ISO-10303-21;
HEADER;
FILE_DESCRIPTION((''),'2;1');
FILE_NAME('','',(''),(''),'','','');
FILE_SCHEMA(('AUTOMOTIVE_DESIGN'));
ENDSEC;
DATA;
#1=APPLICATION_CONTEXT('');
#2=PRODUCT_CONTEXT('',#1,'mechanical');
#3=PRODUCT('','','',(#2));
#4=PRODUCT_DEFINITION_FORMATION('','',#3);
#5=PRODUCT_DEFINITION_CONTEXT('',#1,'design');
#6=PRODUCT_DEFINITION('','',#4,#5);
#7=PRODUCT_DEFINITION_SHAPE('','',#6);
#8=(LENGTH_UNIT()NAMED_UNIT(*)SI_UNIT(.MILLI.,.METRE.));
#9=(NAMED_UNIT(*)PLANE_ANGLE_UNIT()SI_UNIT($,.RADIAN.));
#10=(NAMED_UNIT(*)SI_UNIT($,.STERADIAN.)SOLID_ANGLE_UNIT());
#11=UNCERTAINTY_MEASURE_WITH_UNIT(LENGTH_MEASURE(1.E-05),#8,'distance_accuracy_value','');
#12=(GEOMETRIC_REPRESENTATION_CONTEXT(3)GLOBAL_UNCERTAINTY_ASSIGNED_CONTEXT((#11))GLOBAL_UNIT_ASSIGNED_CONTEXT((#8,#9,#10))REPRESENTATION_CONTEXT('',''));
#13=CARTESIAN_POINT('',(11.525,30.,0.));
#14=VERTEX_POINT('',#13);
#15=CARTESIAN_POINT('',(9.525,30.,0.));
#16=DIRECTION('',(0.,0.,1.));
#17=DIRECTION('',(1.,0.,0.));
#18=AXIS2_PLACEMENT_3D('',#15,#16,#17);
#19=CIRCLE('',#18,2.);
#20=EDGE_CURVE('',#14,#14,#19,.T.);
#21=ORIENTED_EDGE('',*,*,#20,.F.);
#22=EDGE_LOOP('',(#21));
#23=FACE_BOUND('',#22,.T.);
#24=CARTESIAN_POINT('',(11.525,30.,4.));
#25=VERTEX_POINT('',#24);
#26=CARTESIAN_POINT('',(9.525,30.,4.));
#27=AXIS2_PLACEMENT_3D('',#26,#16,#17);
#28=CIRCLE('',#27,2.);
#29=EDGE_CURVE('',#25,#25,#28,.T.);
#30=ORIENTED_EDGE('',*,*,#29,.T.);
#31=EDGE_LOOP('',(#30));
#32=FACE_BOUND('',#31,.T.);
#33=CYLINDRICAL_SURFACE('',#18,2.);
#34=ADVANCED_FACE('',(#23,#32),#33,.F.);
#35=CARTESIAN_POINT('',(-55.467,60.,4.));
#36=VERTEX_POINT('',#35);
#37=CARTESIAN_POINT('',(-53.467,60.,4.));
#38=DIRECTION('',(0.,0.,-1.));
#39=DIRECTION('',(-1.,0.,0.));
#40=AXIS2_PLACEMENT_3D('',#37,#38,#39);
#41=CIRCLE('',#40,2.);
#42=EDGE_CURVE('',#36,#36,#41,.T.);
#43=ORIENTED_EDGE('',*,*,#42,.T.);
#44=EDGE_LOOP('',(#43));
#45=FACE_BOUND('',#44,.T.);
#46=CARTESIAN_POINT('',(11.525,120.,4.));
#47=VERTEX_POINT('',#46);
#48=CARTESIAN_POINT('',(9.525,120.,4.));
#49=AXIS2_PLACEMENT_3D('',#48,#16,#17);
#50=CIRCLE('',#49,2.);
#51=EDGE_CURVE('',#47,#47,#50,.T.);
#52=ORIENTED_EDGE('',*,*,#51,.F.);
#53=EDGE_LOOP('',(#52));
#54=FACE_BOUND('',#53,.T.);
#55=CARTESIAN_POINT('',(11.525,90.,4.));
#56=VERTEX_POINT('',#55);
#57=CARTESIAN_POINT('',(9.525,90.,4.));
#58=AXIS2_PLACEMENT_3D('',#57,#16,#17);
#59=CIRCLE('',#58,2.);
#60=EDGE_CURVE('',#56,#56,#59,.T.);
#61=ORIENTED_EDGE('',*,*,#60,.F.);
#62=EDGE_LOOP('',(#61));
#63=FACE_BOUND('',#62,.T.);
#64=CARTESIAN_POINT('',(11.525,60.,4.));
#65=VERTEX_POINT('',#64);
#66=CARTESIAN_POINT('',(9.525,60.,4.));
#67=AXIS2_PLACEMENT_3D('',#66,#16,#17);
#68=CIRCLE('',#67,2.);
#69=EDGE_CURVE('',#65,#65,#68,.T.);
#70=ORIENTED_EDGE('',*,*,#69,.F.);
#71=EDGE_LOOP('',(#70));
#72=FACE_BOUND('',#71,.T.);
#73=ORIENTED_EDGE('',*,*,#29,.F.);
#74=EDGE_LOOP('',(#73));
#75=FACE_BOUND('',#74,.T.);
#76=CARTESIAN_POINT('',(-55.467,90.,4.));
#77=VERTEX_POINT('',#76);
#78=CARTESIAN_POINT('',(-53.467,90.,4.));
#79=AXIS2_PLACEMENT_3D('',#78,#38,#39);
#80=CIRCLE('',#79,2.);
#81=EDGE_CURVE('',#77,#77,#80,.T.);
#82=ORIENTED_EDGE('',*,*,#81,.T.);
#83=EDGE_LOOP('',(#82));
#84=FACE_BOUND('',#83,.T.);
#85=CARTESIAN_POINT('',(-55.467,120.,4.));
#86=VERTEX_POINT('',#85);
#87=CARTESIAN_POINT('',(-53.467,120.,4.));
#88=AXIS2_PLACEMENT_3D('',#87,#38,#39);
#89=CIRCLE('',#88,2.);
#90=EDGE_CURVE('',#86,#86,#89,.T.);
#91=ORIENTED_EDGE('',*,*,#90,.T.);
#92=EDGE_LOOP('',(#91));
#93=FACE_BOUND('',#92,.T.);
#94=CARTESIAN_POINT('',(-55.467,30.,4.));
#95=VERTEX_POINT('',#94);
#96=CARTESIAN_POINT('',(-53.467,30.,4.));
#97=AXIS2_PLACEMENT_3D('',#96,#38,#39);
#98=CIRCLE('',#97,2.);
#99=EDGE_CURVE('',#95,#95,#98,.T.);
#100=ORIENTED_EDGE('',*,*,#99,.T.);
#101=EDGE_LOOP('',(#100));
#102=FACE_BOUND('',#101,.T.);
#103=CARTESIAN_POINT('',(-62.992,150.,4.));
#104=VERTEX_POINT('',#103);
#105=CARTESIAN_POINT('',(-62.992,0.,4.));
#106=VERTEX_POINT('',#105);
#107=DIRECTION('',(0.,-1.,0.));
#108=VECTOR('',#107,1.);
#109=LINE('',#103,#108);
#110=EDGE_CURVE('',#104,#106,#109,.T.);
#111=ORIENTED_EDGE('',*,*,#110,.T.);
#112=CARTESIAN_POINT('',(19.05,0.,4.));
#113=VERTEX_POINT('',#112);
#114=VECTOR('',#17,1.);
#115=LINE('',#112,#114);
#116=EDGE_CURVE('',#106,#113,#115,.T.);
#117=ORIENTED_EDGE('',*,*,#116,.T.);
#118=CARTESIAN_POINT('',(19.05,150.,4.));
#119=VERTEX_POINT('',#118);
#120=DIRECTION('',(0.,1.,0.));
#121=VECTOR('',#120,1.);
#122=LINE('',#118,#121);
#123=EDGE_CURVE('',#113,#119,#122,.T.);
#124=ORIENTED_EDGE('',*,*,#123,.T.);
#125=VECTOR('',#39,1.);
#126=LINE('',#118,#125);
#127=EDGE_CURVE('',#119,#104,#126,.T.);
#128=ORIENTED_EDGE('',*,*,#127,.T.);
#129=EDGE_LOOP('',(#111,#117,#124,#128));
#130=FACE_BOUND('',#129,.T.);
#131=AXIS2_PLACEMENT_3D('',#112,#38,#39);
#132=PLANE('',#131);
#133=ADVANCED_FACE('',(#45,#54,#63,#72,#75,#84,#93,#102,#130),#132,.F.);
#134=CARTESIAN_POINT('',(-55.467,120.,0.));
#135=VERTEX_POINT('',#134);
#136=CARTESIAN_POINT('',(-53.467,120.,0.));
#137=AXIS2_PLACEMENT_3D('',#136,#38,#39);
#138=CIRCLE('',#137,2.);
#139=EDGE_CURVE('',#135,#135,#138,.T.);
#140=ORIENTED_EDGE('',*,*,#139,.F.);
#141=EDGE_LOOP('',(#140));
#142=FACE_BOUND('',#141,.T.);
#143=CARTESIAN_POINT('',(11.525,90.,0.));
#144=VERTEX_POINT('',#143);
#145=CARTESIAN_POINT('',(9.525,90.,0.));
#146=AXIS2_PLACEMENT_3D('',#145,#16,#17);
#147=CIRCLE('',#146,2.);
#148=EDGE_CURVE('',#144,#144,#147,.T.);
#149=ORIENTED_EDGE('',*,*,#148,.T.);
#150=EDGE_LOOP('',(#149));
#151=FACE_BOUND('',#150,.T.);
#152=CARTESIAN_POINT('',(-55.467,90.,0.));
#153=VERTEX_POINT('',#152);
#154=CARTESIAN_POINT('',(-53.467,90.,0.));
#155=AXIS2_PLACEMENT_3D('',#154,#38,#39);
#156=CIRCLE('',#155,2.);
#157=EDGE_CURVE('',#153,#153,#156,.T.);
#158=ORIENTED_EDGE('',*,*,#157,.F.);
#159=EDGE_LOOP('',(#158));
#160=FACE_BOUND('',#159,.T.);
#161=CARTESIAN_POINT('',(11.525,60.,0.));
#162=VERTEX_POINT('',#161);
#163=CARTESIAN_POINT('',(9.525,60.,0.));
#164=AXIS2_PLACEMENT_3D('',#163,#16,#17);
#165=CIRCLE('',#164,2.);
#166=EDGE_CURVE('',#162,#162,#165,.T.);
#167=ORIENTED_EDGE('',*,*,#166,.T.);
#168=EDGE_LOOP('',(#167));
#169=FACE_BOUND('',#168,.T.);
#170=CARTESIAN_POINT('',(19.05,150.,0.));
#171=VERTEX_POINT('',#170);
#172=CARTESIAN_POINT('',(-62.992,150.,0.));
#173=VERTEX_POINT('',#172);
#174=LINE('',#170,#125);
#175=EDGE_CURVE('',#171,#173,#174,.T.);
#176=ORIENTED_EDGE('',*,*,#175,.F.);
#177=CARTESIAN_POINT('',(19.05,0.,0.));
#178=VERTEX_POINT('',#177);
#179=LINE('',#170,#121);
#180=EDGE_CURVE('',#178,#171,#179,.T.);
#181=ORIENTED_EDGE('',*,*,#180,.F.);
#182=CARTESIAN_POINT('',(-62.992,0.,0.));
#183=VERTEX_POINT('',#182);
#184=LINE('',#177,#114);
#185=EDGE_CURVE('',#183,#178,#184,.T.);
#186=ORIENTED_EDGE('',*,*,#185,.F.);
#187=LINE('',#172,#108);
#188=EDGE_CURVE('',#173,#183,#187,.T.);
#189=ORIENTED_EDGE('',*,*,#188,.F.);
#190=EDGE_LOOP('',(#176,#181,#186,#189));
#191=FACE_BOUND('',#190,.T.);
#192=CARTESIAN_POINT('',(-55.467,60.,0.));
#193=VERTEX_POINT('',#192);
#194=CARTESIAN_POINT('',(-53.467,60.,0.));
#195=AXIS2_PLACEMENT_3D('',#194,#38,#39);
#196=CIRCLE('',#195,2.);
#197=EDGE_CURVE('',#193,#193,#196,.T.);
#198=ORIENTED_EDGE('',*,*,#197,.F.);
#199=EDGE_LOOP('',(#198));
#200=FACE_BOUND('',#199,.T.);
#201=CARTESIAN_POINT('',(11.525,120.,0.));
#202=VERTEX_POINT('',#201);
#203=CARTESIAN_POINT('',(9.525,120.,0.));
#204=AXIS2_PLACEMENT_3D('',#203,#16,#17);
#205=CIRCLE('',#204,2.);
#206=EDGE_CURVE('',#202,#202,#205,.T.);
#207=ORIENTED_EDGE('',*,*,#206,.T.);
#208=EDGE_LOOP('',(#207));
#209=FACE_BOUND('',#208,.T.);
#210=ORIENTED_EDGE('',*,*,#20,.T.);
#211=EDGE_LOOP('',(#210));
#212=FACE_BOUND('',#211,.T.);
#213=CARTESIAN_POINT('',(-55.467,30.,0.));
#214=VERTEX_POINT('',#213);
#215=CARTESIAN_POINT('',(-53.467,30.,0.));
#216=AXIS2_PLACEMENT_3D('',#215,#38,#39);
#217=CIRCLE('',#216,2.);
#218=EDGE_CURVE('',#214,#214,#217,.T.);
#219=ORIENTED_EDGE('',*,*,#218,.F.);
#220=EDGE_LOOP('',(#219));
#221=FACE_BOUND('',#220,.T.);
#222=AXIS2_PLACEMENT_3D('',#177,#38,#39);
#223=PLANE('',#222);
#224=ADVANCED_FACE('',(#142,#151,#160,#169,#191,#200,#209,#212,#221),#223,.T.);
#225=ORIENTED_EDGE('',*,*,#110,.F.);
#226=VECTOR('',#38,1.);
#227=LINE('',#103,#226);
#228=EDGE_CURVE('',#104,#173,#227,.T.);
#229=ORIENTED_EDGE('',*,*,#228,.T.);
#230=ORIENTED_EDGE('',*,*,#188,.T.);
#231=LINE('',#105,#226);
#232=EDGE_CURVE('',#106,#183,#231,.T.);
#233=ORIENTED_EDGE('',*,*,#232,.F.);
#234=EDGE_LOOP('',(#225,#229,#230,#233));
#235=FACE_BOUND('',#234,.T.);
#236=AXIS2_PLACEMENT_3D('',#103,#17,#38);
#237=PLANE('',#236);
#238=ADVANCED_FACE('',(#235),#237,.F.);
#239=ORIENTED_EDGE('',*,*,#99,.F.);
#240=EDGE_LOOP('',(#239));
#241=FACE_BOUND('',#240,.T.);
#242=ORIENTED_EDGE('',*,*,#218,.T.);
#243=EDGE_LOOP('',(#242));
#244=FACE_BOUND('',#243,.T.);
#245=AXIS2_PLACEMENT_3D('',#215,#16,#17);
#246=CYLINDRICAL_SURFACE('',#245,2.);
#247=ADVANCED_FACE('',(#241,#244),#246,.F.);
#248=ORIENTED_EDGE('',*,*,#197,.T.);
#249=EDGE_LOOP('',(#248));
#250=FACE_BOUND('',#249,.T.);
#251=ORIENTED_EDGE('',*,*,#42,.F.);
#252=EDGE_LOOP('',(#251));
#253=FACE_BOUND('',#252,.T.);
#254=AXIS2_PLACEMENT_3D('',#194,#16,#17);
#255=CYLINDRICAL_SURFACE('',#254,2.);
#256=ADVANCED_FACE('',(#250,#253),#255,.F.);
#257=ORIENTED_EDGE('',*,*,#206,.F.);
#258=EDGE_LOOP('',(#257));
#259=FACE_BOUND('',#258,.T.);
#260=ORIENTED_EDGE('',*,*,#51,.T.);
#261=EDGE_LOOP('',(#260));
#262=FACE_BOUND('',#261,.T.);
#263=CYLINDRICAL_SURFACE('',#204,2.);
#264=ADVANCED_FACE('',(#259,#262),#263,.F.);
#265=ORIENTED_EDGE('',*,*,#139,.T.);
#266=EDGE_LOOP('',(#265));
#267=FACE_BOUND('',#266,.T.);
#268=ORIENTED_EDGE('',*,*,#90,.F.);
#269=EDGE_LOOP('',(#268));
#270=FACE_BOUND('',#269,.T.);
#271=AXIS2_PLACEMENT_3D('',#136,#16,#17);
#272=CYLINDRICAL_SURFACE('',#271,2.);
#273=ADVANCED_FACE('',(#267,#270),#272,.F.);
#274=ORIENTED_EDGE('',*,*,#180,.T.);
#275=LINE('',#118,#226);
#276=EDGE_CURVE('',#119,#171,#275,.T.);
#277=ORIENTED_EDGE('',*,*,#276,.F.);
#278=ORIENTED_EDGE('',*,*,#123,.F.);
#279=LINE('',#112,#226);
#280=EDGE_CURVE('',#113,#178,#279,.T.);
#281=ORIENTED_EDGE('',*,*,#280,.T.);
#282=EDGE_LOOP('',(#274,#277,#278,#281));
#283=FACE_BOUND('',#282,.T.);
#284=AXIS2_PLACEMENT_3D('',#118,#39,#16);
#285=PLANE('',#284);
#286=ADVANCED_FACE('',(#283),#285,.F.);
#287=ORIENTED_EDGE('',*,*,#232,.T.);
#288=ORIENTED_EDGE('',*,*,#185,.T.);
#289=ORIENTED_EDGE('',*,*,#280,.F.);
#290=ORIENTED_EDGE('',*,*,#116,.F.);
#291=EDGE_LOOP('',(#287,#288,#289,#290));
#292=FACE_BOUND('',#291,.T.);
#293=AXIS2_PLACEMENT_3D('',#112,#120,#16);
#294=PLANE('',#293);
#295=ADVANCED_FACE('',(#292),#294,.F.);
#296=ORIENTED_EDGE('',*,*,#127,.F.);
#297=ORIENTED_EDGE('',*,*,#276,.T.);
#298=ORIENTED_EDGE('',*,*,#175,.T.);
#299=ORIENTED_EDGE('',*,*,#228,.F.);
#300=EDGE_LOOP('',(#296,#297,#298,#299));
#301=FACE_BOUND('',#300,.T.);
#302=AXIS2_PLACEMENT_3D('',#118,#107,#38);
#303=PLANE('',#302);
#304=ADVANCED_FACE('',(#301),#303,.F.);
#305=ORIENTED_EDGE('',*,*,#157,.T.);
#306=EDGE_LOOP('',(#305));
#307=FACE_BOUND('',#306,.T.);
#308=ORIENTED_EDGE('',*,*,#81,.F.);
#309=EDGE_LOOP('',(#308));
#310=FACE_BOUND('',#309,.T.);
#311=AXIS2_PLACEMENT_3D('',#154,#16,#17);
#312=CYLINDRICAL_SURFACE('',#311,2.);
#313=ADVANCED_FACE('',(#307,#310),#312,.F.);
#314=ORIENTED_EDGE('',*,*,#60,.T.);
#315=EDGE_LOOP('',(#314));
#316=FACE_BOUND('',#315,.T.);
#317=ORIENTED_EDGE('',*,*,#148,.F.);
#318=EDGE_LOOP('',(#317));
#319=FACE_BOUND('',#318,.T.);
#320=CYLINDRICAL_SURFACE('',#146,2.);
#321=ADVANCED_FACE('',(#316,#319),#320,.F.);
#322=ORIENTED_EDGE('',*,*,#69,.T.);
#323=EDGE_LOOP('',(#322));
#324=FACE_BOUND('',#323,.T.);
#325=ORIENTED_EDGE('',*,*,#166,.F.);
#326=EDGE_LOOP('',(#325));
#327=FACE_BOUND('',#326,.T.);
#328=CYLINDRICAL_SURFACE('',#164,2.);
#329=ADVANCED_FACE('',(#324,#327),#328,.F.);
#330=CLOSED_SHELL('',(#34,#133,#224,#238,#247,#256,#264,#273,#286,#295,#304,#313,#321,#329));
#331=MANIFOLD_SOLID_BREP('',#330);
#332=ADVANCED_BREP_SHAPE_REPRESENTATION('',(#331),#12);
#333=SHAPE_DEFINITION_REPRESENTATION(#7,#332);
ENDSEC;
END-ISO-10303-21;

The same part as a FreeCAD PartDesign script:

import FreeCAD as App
import Part
import Sketcher
from FreeCAD import Vector


def add_polygon(sketch, points):
    """Adds a closed chain of lines whose ends are joined by coincident constraints."""
    first, n = sketch.GeometryCount, len(points)
    for a, b in zip(points, points[1:] + points[:1]):
        sketch.addGeometry(Part.LineSegment(App.Vector(*a, 0), App.Vector(*b, 0)), False)
    for i in range(n):
        sketch.addConstraint(Sketcher.Constraint("Coincident", first + i, 2, first + (i + 1) % n, 1))

doc = App.newDocument("Part")
body = doc.addObject("PartDesign::Body", "Body")

sketch1 = body.newObject("Sketcher::SketchObject", "Sketch")
sketch1.AttachmentSupport = (doc.getObject("XY_Plane"), [""])
sketch1.MapMode = "FlatFace"
add_polygon(sketch1, [(-63, 150), (-63, 0), (19, 0), (19, 150)])
sketch1.addConstraint(Sketcher.Constraint("Vertical", 0))
sketch1.addConstraint(Sketcher.Constraint("Horizontal", 1))
sketch1.addConstraint(Sketcher.Constraint("Vertical", 2))
sketch1.addConstraint(Sketcher.Constraint("Horizontal", 3))
sketch1.addConstraint(Sketcher.Constraint("PointOnObject", 0, 2, -1))
sketch1.addConstraint(Sketcher.Constraint("DistanceY", 0, 2, 0, 1, 150.0))
sketch1.addConstraint(Sketcher.Constraint("DistanceX", 1, 1, 1, 2, 82.042))
sketch1.addConstraint(Sketcher.Constraint("DistanceX", -1, 1, 1, 2, 19.05))
pad1 = body.newObject("PartDesign::Pad", "Pad")
pad1.Profile = sketch1
pad1.Length = 4

sketch2 = body.newObject("Sketcher::SketchObject", "Sketch001")
sketch2.AttachmentSupport = (doc.getObject("XY_Plane"), [""])
sketch2.MapMode = "FlatFace"
sketch2.AttachmentOffset = App.Placement(Vector(0, 0, 4), App.Rotation())
sketch2.addGeometry(Part.Circle(Vector(-53.5, 30, 0), Vector(0, 0, 1), 2), False)
sketch2.addGeometry(Part.Circle(Vector(9.5, 30, 0), Vector(0, 0, 1), 2), False)
sketch2.addGeometry(Part.Circle(Vector(9.5, 60, 0), Vector(0, 0, 1), 2), False)
sketch2.addGeometry(Part.Circle(Vector(9.5, 90, 0), Vector(0, 0, 1), 2), False)
sketch2.addGeometry(Part.Circle(Vector(9.5, 120, 0), Vector(0, 0, 1), 2), False)
sketch2.addGeometry(Part.Circle(Vector(-53.5, 60, 0), Vector(0, 0, 1), 2), False)
sketch2.addGeometry(Part.Circle(Vector(-53.5, 90, 0), Vector(0, 0, 1), 2), False)
sketch2.addGeometry(Part.Circle(Vector(-53.5, 120, 0), Vector(0, 0, 1), 2), False)
sketch2.addConstraint(Sketcher.Constraint("Equal", 0, 1))
sketch2.addConstraint(Sketcher.Constraint("Equal", 1, 2))
sketch2.addConstraint(Sketcher.Constraint("Equal", 2, 3))
sketch2.addConstraint(Sketcher.Constraint("Equal", 3, 4))
sketch2.addConstraint(Sketcher.Constraint("Equal", 4, 5))
sketch2.addConstraint(Sketcher.Constraint("Equal", 5, 6))
sketch2.addConstraint(Sketcher.Constraint("Equal", 6, 7))
sketch2.addConstraint(Sketcher.Constraint("Horizontal", 0, 3, 1, 3))
sketch2.addConstraint(Sketcher.Constraint("Horizontal", 2, 3, 5, 3))
sketch2.addConstraint(Sketcher.Constraint("Horizontal", 3, 3, 6, 3))
sketch2.addConstraint(Sketcher.Constraint("Horizontal", 4, 3, 7, 3))
sketch2.addConstraint(Sketcher.Constraint("Vertical", 1, 3, 2, 3))
sketch2.addConstraint(Sketcher.Constraint("Vertical", 2, 3, 3, 3))
sketch2.addConstraint(Sketcher.Constraint("Vertical", 3, 3, 4, 3))
sketch2.addConstraint(Sketcher.Constraint("Vertical", 0, 3, 5, 3))
sketch2.addConstraint(Sketcher.Constraint("Vertical", 5, 3, 6, 3))
sketch2.addConstraint(Sketcher.Constraint("Vertical", 6, 3, 7, 3))
sketch2.addConstraint(Sketcher.Constraint("Diameter", 0, 4.0))
sketch2.addConstraint(Sketcher.Constraint("DistanceY", -1, 1, 0, 3, 30.0))
sketch2.addConstraint(Sketcher.Constraint("DistanceY", -1, 1, 2, 3, 60.0))
sketch2.addConstraint(Sketcher.Constraint("DistanceY", -1, 1, 3, 3, 90.0))
sketch2.addConstraint(Sketcher.Constraint("DistanceY", -1, 1, 4, 3, 120.0))
sketch2.addConstraint(Sketcher.Constraint("DistanceX", 0, 3, -1, 1, 53.467))
sketch2.addConstraint(Sketcher.Constraint("DistanceX", -1, 1, 1, 3, 9.525))
pocket1 = body.newObject("PartDesign::Pocket", "Pocket")
pocket1.Profile = sketch2
pocket1.Type = "ThroughAll"

doc.recompute()
